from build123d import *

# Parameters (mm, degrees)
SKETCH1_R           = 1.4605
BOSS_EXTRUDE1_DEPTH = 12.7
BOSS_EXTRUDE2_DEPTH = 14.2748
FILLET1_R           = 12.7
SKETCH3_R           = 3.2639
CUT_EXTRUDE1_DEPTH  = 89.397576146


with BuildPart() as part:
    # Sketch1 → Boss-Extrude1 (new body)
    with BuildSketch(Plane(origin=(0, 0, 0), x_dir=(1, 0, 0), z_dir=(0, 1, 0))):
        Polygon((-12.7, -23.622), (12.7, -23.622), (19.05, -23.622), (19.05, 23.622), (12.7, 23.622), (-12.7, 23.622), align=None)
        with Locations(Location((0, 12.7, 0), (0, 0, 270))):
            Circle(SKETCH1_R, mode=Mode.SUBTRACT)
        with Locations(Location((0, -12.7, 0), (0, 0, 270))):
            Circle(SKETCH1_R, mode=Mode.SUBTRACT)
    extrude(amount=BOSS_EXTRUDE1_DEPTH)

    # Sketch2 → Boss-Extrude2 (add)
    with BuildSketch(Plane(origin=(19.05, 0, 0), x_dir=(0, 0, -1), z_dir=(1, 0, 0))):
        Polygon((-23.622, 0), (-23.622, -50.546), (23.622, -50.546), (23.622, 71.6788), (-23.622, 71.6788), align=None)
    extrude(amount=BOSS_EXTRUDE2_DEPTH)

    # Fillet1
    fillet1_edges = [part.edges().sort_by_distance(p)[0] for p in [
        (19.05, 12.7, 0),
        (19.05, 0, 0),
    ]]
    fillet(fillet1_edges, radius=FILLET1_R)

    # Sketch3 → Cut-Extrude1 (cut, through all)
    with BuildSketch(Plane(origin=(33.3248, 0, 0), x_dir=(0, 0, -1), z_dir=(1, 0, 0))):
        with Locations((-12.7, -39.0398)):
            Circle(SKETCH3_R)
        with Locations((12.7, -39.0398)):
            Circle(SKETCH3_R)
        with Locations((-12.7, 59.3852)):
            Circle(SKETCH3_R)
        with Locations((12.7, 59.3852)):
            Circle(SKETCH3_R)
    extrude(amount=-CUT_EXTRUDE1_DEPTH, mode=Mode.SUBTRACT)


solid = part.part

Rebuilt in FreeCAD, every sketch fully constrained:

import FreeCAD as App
import Part
import Sketcher
from FreeCAD import Vector
Q = App.Units.Quantity


def edges_at(feature, points):
    """Names of the edges that pass closest to the given points."""
    edges = feature.Shape.Edges
    near = lambda p: min(range(len(edges)), key=lambda i: edges[i].distToShape(Part.Vertex(*p))[0])
    return sorted({f"Edge{near(p) + 1}" for p in points})


def add_polygon(sketch, points):
    """Adds a closed chain of lines whose ends are joined by coincident constraints."""
    first, n = sketch.GeometryCount, len(points)
    for a, b in zip(points, points[1:] + points[:1]):
        sketch.addGeometry(Part.LineSegment(App.Vector(*a, 0), App.Vector(*b, 0)), False)
    for i in range(n):
        sketch.addConstraint(Sketcher.Constraint("Coincident", first + i, 2, first + (i + 1) % n, 1))

doc = App.newDocument("Part")
body = doc.addObject("PartDesign::Body", "Body")

sketch1 = doc.addObject("Sketcher::SketchObject", "Sketch")
body.addObject(sketch1)
sketch1.AttachmentSupport = (doc.XZ_Plane, [""])
sketch1.MapMode = "FlatFace"
add_polygon(sketch1, [(-12.7, 23.622), (19.05, 23.622), (19.05, -23.622), (-12.7, -23.622)])
sketch1.addGeometry(Part.Circle(Vector(0, 12.7, 0), Vector(0, 0, 1), 1.4605), False)
sketch1.addGeometry(Part.Circle(Vector(0, -12.7, 0), Vector(0, 0, 1), 1.4605), False)
sketch1.addConstraint(Sketcher.Constraint("Horizontal", 0))
sketch1.addConstraint(Sketcher.Constraint("Vertical", 1))
sketch1.addConstraint(Sketcher.Constraint("Horizontal", 2))
sketch1.addConstraint(Sketcher.Constraint("Vertical", 3))
sketch1.addConstraint(Sketcher.Constraint("Equal", 4, 5))
sketch1.addConstraint(Sketcher.Constraint("Symmetric", 4, 3, 5, 3, -1, 1))
sketch1.addConstraint(Sketcher.Constraint("PointOnObject", 4, 3, -2))
sketch1.addConstraint(Sketcher.Constraint("Diameter", 4, Q("0.115 in")))
sketch1.addConstraint(Sketcher.Constraint("DistanceY", 5, 3, 4, 3, Q("1 in")))
sketch1.addConstraint(Sketcher.Constraint("DistanceX", 0, 1, 0, 2, Q("1.25 in")))
sketch1.addConstraint(Sketcher.Constraint("DistanceY", 1, 2, 1, 1, Q("1.86 in")))
sketch1.addConstraint(Sketcher.Constraint("DistanceX", 2, 2, -1, 1, Q("0.5 in")))
sketch1.addConstraint(Sketcher.Constraint("DistanceY", -1, 1, 0, 2, Q("0.93 in")))
pad1 = doc.addObject("PartDesign::Pad", "Pad")
body.addObject(pad1)
pad1.Profile = sketch1
pad1.Length = Q("0.5 in")
pad1.Reversed = True

sketch2 = doc.addObject("Sketcher::SketchObject", "Sketch001")
body.addObject(sketch2)
sketch2.AttachmentSupport = (doc.YZ_Plane, [""])
sketch2.MapMode = "FlatFace"
sketch2.AttachmentOffset = App.Placement(Vector(0, 0, 0.75 * 25.4), App.Rotation())
add_polygon(sketch2, [(-50.546, 23.622), (-50.546, -23.622), (71.6788, -23.622), (71.6788, 23.622)])
sketch2.addConstraint(Sketcher.Constraint("Vertical", 0))
sketch2.addConstraint(Sketcher.Constraint("Horizontal", 1))
sketch2.addConstraint(Sketcher.Constraint("Vertical", 2))
sketch2.addConstraint(Sketcher.Constraint("Horizontal", 3))
sketch2.addConstraint(Sketcher.Constraint("DistanceY", 0, 2, 0, 1, Q("1.86 in")))
sketch2.addConstraint(Sketcher.Constraint("DistanceX", 1, 1, 1, 2, Q("4.812 in")))
sketch2.addConstraint(Sketcher.Constraint("DistanceX", 0, 2, -1, 1, Q("1.99 in")))
sketch2.addConstraint(Sketcher.Constraint("DistanceY", 0, 2, -1, 1, Q("0.93 in")))
pad2 = doc.addObject("PartDesign::Pad", "Pad001")
body.addObject(pad2)
pad2.Profile = sketch2
pad2.Length = Q("0.562 in")
doc.recompute()

fillet = doc.addObject("PartDesign::Fillet", "Fillet")
body.addObject(fillet)
fillet.Base = (pad2, edges_at(pad2, [(19.05, 12.7, 0), (19.05, 0, 0)]))
fillet.Radius = Q("0.5 in")

sketch3 = doc.addObject("Sketcher::SketchObject", "Sketch002")
body.addObject(sketch3)
sketch3.AttachmentSupport = (doc.YZ_Plane, [""])
sketch3.MapMode = "FlatFace"
sketch3.AttachmentOffset = App.Placement(Vector(0, 0, 1.312 * 25.4), App.Rotation())
sketch3.addGeometry(Part.Circle(Vector(-39.0398, 12.7, 0), Vector(0, 0, 1), 3.2639), False)
sketch3.addGeometry(Part.Circle(Vector(-39.0398, -12.7, 0), Vector(0, 0, 1), 3.2639), False)
sketch3.addGeometry(Part.Circle(Vector(59.3852, 12.7, 0), Vector(0, 0, 1), 3.2639), False)
sketch3.addGeometry(Part.Circle(Vector(59.3852, -12.7, 0), Vector(0, 0, 1), 3.2639), False)
sketch3.addConstraint(Sketcher.Constraint("Equal", 0, 1))
sketch3.addConstraint(Sketcher.Constraint("Equal", 1, 2))
sketch3.addConstraint(Sketcher.Constraint("Equal", 2, 3))
sketch3.addConstraint(Sketcher.Constraint("Symmetric", 0, 3, 1, 3, -1))
sketch3.addConstraint(Sketcher.Constraint("Symmetric", 2, 3, 3, 3, -1))
sketch3.addConstraint(Sketcher.Constraint("Horizontal", 0, 3, 2, 3))
sketch3.addConstraint(Sketcher.Constraint("Diameter", 0, Q("0.257 in")))
sketch3.addConstraint(Sketcher.Constraint("DistanceY", 1, 3, 0, 3, Q("1 in")))
sketch3.addConstraint(Sketcher.Constraint("DistanceX", 0, 3, -1, 1, Q("1.537 in")))
sketch3.addConstraint(Sketcher.Constraint("DistanceX", -1, 1, 2, 3, Q("2.338 in")))
pocket1 = doc.addObject("PartDesign::Pocket", "Pocket")
body.addObject(pocket1)
pocket1.Profile = sketch3
pocket1.Type = "ThroughAll"

doc.recompute()
